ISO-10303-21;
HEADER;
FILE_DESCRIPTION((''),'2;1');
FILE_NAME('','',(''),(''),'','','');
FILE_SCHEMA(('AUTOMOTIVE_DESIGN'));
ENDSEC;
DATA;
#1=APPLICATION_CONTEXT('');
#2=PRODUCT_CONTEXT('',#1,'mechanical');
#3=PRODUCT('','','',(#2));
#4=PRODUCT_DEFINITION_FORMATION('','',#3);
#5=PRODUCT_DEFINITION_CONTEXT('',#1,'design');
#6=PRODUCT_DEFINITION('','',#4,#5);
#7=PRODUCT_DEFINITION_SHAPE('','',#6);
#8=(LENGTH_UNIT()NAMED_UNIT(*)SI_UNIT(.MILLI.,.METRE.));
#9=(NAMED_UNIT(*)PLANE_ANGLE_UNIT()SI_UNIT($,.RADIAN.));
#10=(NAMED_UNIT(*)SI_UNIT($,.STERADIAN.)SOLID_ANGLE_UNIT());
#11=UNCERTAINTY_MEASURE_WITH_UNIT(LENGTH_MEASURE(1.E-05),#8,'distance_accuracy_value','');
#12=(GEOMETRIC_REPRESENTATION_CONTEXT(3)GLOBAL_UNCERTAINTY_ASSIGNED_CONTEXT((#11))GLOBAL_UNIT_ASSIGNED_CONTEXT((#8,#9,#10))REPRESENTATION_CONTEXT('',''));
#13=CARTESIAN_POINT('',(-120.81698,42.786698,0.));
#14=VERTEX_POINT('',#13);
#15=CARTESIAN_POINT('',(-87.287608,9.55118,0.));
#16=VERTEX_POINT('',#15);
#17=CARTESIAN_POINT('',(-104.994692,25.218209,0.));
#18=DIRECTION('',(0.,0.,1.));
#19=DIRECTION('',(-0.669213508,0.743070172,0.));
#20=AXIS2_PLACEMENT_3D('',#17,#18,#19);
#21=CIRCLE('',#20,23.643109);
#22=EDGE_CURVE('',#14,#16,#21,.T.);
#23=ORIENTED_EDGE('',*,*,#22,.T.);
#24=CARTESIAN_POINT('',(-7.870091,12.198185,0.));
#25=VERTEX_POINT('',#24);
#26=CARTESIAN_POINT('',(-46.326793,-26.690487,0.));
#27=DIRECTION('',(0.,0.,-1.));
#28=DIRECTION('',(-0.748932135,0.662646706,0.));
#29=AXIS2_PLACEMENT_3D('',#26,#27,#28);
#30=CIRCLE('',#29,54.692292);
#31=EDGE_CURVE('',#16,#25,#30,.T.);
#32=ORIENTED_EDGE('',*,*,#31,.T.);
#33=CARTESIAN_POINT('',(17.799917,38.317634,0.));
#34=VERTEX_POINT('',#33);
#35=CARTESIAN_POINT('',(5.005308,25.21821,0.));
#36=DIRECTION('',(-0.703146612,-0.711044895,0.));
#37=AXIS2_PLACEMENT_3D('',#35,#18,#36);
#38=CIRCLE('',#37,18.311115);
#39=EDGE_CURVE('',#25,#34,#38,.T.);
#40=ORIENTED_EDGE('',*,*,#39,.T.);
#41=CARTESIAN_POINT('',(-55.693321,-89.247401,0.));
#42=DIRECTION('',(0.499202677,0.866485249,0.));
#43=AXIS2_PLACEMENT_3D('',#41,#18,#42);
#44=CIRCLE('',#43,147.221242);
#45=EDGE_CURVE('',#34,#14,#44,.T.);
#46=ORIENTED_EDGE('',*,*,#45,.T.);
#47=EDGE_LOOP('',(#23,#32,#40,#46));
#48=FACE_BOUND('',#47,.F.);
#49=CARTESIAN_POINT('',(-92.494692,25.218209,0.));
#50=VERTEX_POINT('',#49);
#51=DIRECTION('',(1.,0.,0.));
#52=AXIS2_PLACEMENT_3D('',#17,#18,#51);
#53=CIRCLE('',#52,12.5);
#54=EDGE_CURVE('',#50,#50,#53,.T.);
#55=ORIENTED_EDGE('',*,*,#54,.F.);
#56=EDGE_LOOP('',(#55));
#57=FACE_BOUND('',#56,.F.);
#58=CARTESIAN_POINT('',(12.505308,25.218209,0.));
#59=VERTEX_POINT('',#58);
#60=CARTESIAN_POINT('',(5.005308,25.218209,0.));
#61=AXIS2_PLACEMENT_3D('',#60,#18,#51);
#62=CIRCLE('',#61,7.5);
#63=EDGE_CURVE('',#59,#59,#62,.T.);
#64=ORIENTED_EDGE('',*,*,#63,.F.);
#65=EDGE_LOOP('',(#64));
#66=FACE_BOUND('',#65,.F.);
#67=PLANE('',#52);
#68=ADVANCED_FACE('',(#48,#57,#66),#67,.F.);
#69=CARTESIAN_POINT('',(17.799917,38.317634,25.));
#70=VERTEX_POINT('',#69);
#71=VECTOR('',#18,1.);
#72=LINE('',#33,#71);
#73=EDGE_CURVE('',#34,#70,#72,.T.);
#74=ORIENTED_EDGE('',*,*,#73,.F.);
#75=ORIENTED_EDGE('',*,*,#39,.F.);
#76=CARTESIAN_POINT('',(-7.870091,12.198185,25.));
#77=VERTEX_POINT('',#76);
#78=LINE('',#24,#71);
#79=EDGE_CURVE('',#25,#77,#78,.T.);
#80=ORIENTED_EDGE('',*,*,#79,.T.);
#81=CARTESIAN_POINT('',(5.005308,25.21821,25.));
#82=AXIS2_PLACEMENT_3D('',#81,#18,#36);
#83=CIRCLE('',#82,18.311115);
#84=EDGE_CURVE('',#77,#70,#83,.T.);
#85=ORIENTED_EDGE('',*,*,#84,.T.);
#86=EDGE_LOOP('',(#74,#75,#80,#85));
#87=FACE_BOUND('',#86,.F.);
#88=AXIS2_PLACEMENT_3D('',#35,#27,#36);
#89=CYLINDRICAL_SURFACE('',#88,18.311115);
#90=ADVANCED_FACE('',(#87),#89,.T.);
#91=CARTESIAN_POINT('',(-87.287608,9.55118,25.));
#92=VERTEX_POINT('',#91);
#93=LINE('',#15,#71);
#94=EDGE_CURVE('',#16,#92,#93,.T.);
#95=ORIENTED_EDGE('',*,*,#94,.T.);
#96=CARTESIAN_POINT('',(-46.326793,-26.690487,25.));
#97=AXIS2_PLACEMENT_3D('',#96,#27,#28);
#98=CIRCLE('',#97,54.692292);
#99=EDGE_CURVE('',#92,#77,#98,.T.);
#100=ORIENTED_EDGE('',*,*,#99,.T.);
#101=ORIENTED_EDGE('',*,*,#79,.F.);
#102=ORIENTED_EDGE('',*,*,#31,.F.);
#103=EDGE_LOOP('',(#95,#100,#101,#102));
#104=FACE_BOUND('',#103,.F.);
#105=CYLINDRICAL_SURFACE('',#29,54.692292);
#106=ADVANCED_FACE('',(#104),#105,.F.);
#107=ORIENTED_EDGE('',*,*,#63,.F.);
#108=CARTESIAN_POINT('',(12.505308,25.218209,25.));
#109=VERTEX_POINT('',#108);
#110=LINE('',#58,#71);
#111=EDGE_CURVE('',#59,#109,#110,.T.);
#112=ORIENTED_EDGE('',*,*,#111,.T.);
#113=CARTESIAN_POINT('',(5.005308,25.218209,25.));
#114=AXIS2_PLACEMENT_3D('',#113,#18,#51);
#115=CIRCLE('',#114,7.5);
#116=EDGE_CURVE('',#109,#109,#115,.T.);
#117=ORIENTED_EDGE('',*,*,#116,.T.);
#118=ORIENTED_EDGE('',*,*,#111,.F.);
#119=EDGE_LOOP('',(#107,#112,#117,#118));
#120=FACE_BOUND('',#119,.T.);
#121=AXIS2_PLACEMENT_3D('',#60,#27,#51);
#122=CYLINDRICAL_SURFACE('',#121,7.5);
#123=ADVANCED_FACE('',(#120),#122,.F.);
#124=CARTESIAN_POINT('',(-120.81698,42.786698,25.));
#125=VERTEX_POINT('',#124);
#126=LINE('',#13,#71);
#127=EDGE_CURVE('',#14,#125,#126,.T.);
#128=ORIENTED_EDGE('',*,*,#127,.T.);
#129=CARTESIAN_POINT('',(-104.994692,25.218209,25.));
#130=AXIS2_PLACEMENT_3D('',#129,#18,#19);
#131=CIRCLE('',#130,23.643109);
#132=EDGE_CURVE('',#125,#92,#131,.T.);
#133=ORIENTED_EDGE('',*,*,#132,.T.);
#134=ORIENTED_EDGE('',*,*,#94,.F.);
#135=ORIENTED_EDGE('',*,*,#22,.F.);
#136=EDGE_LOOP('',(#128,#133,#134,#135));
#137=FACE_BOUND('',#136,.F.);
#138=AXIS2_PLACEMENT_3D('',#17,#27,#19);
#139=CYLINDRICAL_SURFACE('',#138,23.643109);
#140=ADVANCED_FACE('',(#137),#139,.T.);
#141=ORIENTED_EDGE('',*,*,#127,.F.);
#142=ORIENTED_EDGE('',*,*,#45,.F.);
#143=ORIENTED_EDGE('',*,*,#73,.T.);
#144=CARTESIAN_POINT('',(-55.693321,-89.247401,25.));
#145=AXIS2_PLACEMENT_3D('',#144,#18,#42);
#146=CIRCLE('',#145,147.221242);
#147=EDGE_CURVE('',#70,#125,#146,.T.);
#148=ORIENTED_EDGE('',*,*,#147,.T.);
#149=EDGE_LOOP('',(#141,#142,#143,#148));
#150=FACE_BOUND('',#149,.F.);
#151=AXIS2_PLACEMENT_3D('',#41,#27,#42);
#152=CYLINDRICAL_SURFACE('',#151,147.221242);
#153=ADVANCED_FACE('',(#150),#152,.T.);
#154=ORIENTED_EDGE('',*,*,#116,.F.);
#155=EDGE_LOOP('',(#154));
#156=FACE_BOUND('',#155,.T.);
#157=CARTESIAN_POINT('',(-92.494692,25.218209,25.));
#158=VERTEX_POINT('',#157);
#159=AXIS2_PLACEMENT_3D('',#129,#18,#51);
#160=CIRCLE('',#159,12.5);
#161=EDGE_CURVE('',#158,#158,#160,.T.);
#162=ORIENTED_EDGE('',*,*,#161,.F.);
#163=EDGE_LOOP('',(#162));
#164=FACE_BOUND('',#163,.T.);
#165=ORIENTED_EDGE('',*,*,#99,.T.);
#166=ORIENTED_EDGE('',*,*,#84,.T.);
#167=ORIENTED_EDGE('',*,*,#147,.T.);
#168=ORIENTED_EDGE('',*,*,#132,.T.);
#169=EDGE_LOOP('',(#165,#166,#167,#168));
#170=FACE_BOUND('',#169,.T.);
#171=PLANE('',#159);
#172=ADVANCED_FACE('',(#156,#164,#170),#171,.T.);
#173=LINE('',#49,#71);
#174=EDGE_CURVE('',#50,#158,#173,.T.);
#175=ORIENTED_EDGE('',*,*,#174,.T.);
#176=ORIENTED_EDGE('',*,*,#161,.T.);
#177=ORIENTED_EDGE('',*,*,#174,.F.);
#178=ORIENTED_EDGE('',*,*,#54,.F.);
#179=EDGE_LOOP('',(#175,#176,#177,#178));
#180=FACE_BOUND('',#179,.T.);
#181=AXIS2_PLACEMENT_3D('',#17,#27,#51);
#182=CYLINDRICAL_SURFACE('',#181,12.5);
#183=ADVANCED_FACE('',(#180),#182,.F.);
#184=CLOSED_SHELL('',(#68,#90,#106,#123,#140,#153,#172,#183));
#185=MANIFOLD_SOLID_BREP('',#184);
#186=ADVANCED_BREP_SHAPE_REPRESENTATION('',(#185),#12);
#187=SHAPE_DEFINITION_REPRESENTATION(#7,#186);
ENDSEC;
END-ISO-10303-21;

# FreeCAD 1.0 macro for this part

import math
import FreeCAD as App
import Part
import Sketcher

V = App.Vector
Q = App.Units.Quantity

doc = App.newDocument("Part")
body = doc.addObject("PartDesign::Body", "Body")

# Sketch on XY plane
sketch1 = body.newObject("Sketcher::SketchObject", "Sketch")
sketch1.AttachmentSupport = (doc.getObject("XY_Plane"), [""])
sketch1.MapMode = "FlatFace"
sketch1.addGeometry([
    Part.ArcOfCircle(Part.Circle(V(-46.326793, -26.690487, 0), V(0, 0, 1), 54.692292), math.radians(45.31999), math.radians(138.497961)),  # 0
    Part.ArcOfCircle(Part.Circle(V(5.005308, 25.21821, 0), V(0, 0, 1), 18.311115), math.radians(-134.680005), math.radians(45.674433)),  # 1
    Part.ArcOfCircle(Part.Circle(V(-55.693321, -89.247401, 0), V(0, 0, 1), 147.221242), math.radians(60.052736), math.radians(116.254065)),  # 2
    Part.ArcOfCircle(Part.Circle(V(-104.994692, 25.218209, 0), V(0, 0, 1), 23.643109), math.radians(132.006392), math.radians(318.497959)),  # 3
    Part.Circle(V(-104.994692, 25.218209, 0), V(0, 0, 1), 12.5),  # 4
    Part.Circle(V(5.005308, 25.218209, 0), V(0, 0, 1), 7.5),  # 5
], False)
sketch1.addConstraint([
    Sketcher.Constraint("Tangent", 0, 1, 1, 1),
    Sketcher.Constraint("Coincident", 1, 2, 2, 1),
    Sketcher.Constraint("Coincident", 2, 2, 3, 1),
    Sketcher.Constraint("Tangent", 3, 2, 0, 2),
    Sketcher.Constraint("Coincident", 4, 3, 3, 3),
    Sketcher.Constraint("Coincident", 5, 3, 1, 3),
    Sketcher.Constraint("Horizontal", 1, 3, 3, 3),
    Sketcher.Constraint("Diameter", 4, Q("25 mm")),
    Sketcher.Constraint("Diameter", 5, Q("15 mm")),
    Sketcher.Constraint("DistanceX", 3, 3, 1, 3, Q("110 mm")),
    Sketcher.Constraint("Radius", 0, Q("54.692292 mm")),
    Sketcher.Constraint("Radius", 3, Q("23.643109 mm")),
    Sketcher.Constraint("Radius", 1, Q("18.311115 mm")),
    Sketcher.Constraint("Radius", 2, Q("147.221242 mm")),
    Sketcher.Constraint("DistanceY", 2, 3, -1, 1, Q("89.247401 mm")),
    Sketcher.Constraint("DistanceY", -1, 1, 2, 2, Q("42.786698 mm")),
    Sketcher.Constraint("DistanceY", -1, 1, 1, 3, Q("25.21821 mm")),
    Sketcher.Constraint("DistanceX", 2, 3, -1, 1, Q("55.693321 mm")),
])
pad1 = body.newObject("PartDesign::Pad", "Pad")
pad1.Profile = sketch1
pad1.Length = 25

doc.recompute()
